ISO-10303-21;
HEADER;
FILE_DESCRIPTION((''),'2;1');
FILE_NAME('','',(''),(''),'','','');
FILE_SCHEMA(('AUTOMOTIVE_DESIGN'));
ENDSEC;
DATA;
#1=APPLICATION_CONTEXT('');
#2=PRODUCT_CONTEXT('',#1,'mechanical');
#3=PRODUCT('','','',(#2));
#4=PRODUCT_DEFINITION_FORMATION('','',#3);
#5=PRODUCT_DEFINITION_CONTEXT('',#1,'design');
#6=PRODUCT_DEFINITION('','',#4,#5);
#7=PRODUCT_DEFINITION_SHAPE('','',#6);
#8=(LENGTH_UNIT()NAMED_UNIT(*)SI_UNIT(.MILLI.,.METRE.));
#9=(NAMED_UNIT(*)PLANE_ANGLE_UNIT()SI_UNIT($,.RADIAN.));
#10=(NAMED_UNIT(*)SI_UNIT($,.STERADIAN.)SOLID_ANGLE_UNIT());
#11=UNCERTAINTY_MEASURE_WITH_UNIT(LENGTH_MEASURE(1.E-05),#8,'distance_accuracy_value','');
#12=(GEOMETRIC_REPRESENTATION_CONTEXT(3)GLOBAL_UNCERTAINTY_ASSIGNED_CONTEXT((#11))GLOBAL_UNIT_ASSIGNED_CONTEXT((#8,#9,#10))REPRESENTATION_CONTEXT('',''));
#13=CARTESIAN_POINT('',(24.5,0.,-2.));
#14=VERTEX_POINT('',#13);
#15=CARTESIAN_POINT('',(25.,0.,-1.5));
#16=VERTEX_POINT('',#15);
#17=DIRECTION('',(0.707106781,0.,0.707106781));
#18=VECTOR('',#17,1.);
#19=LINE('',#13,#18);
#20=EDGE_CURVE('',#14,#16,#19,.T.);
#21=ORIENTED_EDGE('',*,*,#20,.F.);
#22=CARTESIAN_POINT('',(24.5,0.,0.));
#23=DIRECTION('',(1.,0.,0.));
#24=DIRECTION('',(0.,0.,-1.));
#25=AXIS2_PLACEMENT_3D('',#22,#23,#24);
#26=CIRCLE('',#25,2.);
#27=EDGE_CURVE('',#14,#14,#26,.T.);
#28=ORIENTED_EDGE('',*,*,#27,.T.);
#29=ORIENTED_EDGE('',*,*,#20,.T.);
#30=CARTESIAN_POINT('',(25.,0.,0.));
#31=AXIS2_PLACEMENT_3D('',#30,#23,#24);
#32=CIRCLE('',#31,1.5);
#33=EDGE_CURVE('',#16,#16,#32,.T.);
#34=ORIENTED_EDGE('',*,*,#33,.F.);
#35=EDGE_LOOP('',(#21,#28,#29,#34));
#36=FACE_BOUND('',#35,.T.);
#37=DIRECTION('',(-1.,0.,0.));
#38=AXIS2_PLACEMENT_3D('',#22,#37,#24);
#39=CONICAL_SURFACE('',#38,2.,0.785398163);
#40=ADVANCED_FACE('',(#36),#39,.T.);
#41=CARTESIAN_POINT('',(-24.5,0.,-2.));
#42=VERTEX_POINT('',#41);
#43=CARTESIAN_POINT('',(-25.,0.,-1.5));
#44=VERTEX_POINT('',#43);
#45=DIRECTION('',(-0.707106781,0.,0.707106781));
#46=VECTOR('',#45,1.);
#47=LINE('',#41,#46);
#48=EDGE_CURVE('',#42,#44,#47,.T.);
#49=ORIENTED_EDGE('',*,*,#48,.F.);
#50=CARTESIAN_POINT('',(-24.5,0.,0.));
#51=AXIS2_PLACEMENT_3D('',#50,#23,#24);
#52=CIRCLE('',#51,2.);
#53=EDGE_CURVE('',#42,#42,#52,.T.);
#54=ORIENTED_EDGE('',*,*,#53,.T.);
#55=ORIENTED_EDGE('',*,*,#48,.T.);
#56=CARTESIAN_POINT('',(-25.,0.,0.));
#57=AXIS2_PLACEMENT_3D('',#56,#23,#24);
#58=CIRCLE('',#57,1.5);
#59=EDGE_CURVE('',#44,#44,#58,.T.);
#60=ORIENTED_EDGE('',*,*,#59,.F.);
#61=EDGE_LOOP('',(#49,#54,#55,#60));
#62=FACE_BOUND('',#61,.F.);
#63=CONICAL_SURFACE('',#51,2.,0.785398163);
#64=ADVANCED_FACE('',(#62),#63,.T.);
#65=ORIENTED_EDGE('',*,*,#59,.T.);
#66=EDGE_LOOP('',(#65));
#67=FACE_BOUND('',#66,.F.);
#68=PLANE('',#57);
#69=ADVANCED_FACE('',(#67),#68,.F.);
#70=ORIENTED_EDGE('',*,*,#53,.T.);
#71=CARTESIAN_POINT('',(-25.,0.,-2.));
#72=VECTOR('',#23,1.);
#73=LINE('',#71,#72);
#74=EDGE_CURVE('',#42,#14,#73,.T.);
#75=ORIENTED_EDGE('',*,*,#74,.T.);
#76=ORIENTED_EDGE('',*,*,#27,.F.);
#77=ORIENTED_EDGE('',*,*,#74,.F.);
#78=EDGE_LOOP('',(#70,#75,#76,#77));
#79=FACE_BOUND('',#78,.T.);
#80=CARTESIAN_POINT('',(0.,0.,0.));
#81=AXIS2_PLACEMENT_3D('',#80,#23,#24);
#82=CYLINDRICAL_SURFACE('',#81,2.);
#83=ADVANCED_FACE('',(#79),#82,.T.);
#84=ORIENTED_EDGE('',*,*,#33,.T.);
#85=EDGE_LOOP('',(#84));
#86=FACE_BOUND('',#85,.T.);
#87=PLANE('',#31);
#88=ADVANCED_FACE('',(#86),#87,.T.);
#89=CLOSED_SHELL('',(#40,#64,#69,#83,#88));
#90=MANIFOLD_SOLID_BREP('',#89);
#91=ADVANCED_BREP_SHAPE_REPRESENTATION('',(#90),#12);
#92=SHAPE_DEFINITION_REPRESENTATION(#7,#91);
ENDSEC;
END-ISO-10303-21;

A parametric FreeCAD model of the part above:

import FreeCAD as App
import Part
import Sketcher


def edges_at(feature, points):
    """Names of the edges that pass closest to the given points."""
    edges = feature.Shape.Edges
    near = lambda p: min(range(len(edges)), key=lambda i: edges[i].distToShape(Part.Vertex(*p))[0])
    return sorted({f"Edge{near(p) + 1}" for p in points})

doc = App.newDocument("Part")
body = doc.addObject("PartDesign::Body", "Body")

sketch1 = doc.addObject("Sketcher::SketchObject", "Sketch")
body.addObject(sketch1)
sketch1.AttachmentSupport = (doc.YZ_Plane, [""])
sketch1.MapMode = "FlatFace"
sketch1.addGeometry(Part.Circle(App.Vector(0, 0, 0), App.Vector(0, 0, 1), 2), False)
sketch1.addConstraint(Sketcher.Constraint("Coincident", 0, 3, -1, 1))
sketch1.addConstraint(Sketcher.Constraint("Diameter", 0, 4.0))
pad1 = doc.addObject("PartDesign::Pad", "Pad")
body.addObject(pad1)
pad1.Profile = sketch1
pad1.Length = 50
pad1.Midplane = True
doc.recompute()

chamfer = doc.addObject("PartDesign::Chamfer", "Chamfer")
body.addObject(chamfer)
chamfer.Base = (pad1, edges_at(pad1, [(-25, 0, 2), (25, 0, 2)]))
chamfer.Size = 0.5

doc.recompute()
